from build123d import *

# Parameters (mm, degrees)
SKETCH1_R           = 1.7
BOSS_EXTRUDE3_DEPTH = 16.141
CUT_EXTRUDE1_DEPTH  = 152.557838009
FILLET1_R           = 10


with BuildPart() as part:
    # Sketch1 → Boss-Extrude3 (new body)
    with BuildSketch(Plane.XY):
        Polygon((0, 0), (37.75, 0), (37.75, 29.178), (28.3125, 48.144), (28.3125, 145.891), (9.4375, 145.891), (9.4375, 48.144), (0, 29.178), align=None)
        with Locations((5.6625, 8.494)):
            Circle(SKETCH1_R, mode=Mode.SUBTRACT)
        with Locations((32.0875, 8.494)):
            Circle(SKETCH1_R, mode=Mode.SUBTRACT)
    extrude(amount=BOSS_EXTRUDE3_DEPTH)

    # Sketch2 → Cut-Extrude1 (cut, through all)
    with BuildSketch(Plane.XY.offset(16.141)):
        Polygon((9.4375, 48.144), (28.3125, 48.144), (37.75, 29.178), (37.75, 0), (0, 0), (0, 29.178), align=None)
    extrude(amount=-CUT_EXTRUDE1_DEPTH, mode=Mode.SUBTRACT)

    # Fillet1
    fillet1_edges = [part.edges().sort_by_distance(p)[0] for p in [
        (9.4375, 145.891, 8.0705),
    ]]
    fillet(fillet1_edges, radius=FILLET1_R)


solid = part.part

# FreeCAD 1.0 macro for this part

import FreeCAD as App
import Part
import Sketcher
from FreeCAD import Vector
Q = App.Units.Quantity


def edges_at(feature, points):
    """Names of the edges that pass closest to the given points."""
    edges = feature.Shape.Edges
    near = lambda p: min(range(len(edges)), key=lambda i: edges[i].distToShape(Part.Vertex(*p))[0])
    return sorted({f"Edge{near(p) + 1}" for p in points})

doc = App.newDocument("Part")
body = doc.addObject("PartDesign::Body", "Body")

sketch1 = body.newObject("Sketcher::SketchObject", "Sketch")
sketch1.AttachmentSupport = (doc.getObject("XY_Plane"), [""])
sketch1.MapMode = "FlatFace"
sketch1.addGeometry([
    Part.LineSegment(Vector(0, 0, 0), Vector(37.8, 0, 0)),
    Part.LineSegment(Vector(37.8, 0, 0), Vector(37.8, 29.2, 0)),
    Part.LineSegment(Vector(37.8, 29.2, 0), Vector(28.3, 48.1, 0)),
    Part.LineSegment(Vector(28.3, 48.1, 0), Vector(28.3, 145.9, 0)),
    Part.LineSegment(Vector(28.3, 145.9, 0), Vector(9.4, 145.9, 0)),
    Part.LineSegment(Vector(9.4, 145.9, 0), Vector(9.4, 48.1, 0)),
    Part.LineSegment(Vector(9.4, 48.1, 0), Vector(0, 29.2, 0)),
    Part.LineSegment(Vector(0, 29.2, 0), Vector(0, 0, 0)),
    Part.Circle(Vector(5.7, 8.5, 0), Vector(0, 0, 1), 1.7),
    Part.Circle(Vector(32.1, 8.5, 0), Vector(0, 0, 1), 1.7),
], False)
sketch1.addConstraint([
    Sketcher.Constraint("Coincident", 0, 2, 1, 1),
    Sketcher.Constraint("Coincident", 1, 2, 2, 1),
    Sketcher.Constraint("Coincident", 2, 2, 3, 1),
    Sketcher.Constraint("Coincident", 3, 2, 4, 1),
    Sketcher.Constraint("Coincident", 4, 2, 5, 1),
    Sketcher.Constraint("Coincident", 5, 2, 6, 1),
    Sketcher.Constraint("Coincident", 6, 2, 7, 1),
    Sketcher.Constraint("Coincident", 7, 2, 0, 1),
    Sketcher.Constraint("Horizontal", 0),
    Sketcher.Constraint("Vertical", 1),
    Sketcher.Constraint("Vertical", 3),
    Sketcher.Constraint("Horizontal", 4),
    Sketcher.Constraint("Vertical", 5),
    Sketcher.Constraint("Vertical", 7),
    Sketcher.Constraint("Coincident", 7, 2, -1, 1),
    Sketcher.Constraint("Equal", 8, 9),
    Sketcher.Constraint("Horizontal", 8, 3, 9, 3),
    Sketcher.Constraint("Horizontal", 2, 2, 5, 2),
    Sketcher.Constraint("Horizontal", 1, 2, 6, 2),
    Sketcher.Constraint("Equal", 2, 6),
    Sketcher.Constraint("Diameter", 8, Q("3.4 mm")),
    Sketcher.Constraint("DistanceX", 0, 1, 0, 2, Q("37.75 mm")),
    Sketcher.Constraint("DistanceX", 4, 2, 4, 1, Q("18.875 mm")),
    Sketcher.Constraint("DistanceY", 1, 1, 1, 2, Q("29.178 mm")),
    Sketcher.Constraint("DistanceY", 3, 1, 3, 2, Q("97.747 mm")),
    Sketcher.Constraint("DistanceY", 9, 3, 2, 2, Q("39.65 mm")),
    Sketcher.Constraint("DistanceX", 8, 3, 2, 2, Q("22.65 mm")),
    Sketcher.Constraint("DistanceX", 4, 2, 9, 3, Q("22.65 mm")),
    Sketcher.Constraint("DistanceY", -1, 1, 8, 3, Q("8.494 mm")),
])
pad1 = body.newObject("PartDesign::Pad", "Pad")
pad1.Profile = sketch1
pad1.Length = 16.141

sketch2 = body.newObject("Sketcher::SketchObject", "Sketch001")
sketch2.AttachmentSupport = (doc.getObject("XY_Plane"), [""])
sketch2.MapMode = "FlatFace"
sketch2.AttachmentOffset = App.Placement(Vector(0, 0, 16.141), App.Rotation())
sketch2.addGeometry([
    Part.LineSegment(Vector(28, 48, 0), Vector(9, 48, 0)),
    Part.LineSegment(Vector(9, 48, 0), Vector(0, 29, 0)),
    Part.LineSegment(Vector(0, 29, 0), Vector(0, 0, 0)),
    Part.LineSegment(Vector(0, 0, 0), Vector(38, 0, 0)),
    Part.LineSegment(Vector(38, 0, 0), Vector(38, 29, 0)),
    Part.LineSegment(Vector(38, 29, 0), Vector(28, 48, 0)),
], False)
sketch2.addConstraint([
    Sketcher.Constraint("Coincident", 0, 2, 1, 1),
    Sketcher.Constraint("Coincident", 1, 2, 2, 1),
    Sketcher.Constraint("Coincident", 2, 2, 3, 1),
    Sketcher.Constraint("Coincident", 3, 2, 4, 1),
    Sketcher.Constraint("Coincident", 4, 2, 5, 1),
    Sketcher.Constraint("Coincident", 5, 2, 0, 1),
    Sketcher.Constraint("Horizontal", 0),
    Sketcher.Constraint("Vertical", 2),
    Sketcher.Constraint("Horizontal", 3),
    Sketcher.Constraint("Vertical", 4),
    Sketcher.Constraint("Coincident", 2, 2, -1, 1),
    Sketcher.Constraint("Horizontal", 1, 2, 4, 2),
    Sketcher.Constraint("Equal", 1, 5),
    Sketcher.Constraint("DistanceX", 3, 1, 3, 2, Q("37.75 mm")),
    Sketcher.Constraint("DistanceX", 0, 2, 0, 1, Q("18.875 mm")),
    Sketcher.Constraint("DistanceY", 2, 2, 2, 1, Q("29.178 mm")),
    Sketcher.Constraint("DistanceY", -1, 1, 0, 2, Q("48.144 mm")),
])
pocket1 = body.newObject("PartDesign::Pocket", "Pocket")
pocket1.Profile = sketch2
pocket1.Type = "ThroughAll"
doc.recompute()

fillet = body.newObject("PartDesign::Fillet", "Fillet")
fillet.Base = (pocket1, edges_at(pocket1, [(9.438, 145.891, 8.07)]))
fillet.Radius = 10

doc.recompute()
